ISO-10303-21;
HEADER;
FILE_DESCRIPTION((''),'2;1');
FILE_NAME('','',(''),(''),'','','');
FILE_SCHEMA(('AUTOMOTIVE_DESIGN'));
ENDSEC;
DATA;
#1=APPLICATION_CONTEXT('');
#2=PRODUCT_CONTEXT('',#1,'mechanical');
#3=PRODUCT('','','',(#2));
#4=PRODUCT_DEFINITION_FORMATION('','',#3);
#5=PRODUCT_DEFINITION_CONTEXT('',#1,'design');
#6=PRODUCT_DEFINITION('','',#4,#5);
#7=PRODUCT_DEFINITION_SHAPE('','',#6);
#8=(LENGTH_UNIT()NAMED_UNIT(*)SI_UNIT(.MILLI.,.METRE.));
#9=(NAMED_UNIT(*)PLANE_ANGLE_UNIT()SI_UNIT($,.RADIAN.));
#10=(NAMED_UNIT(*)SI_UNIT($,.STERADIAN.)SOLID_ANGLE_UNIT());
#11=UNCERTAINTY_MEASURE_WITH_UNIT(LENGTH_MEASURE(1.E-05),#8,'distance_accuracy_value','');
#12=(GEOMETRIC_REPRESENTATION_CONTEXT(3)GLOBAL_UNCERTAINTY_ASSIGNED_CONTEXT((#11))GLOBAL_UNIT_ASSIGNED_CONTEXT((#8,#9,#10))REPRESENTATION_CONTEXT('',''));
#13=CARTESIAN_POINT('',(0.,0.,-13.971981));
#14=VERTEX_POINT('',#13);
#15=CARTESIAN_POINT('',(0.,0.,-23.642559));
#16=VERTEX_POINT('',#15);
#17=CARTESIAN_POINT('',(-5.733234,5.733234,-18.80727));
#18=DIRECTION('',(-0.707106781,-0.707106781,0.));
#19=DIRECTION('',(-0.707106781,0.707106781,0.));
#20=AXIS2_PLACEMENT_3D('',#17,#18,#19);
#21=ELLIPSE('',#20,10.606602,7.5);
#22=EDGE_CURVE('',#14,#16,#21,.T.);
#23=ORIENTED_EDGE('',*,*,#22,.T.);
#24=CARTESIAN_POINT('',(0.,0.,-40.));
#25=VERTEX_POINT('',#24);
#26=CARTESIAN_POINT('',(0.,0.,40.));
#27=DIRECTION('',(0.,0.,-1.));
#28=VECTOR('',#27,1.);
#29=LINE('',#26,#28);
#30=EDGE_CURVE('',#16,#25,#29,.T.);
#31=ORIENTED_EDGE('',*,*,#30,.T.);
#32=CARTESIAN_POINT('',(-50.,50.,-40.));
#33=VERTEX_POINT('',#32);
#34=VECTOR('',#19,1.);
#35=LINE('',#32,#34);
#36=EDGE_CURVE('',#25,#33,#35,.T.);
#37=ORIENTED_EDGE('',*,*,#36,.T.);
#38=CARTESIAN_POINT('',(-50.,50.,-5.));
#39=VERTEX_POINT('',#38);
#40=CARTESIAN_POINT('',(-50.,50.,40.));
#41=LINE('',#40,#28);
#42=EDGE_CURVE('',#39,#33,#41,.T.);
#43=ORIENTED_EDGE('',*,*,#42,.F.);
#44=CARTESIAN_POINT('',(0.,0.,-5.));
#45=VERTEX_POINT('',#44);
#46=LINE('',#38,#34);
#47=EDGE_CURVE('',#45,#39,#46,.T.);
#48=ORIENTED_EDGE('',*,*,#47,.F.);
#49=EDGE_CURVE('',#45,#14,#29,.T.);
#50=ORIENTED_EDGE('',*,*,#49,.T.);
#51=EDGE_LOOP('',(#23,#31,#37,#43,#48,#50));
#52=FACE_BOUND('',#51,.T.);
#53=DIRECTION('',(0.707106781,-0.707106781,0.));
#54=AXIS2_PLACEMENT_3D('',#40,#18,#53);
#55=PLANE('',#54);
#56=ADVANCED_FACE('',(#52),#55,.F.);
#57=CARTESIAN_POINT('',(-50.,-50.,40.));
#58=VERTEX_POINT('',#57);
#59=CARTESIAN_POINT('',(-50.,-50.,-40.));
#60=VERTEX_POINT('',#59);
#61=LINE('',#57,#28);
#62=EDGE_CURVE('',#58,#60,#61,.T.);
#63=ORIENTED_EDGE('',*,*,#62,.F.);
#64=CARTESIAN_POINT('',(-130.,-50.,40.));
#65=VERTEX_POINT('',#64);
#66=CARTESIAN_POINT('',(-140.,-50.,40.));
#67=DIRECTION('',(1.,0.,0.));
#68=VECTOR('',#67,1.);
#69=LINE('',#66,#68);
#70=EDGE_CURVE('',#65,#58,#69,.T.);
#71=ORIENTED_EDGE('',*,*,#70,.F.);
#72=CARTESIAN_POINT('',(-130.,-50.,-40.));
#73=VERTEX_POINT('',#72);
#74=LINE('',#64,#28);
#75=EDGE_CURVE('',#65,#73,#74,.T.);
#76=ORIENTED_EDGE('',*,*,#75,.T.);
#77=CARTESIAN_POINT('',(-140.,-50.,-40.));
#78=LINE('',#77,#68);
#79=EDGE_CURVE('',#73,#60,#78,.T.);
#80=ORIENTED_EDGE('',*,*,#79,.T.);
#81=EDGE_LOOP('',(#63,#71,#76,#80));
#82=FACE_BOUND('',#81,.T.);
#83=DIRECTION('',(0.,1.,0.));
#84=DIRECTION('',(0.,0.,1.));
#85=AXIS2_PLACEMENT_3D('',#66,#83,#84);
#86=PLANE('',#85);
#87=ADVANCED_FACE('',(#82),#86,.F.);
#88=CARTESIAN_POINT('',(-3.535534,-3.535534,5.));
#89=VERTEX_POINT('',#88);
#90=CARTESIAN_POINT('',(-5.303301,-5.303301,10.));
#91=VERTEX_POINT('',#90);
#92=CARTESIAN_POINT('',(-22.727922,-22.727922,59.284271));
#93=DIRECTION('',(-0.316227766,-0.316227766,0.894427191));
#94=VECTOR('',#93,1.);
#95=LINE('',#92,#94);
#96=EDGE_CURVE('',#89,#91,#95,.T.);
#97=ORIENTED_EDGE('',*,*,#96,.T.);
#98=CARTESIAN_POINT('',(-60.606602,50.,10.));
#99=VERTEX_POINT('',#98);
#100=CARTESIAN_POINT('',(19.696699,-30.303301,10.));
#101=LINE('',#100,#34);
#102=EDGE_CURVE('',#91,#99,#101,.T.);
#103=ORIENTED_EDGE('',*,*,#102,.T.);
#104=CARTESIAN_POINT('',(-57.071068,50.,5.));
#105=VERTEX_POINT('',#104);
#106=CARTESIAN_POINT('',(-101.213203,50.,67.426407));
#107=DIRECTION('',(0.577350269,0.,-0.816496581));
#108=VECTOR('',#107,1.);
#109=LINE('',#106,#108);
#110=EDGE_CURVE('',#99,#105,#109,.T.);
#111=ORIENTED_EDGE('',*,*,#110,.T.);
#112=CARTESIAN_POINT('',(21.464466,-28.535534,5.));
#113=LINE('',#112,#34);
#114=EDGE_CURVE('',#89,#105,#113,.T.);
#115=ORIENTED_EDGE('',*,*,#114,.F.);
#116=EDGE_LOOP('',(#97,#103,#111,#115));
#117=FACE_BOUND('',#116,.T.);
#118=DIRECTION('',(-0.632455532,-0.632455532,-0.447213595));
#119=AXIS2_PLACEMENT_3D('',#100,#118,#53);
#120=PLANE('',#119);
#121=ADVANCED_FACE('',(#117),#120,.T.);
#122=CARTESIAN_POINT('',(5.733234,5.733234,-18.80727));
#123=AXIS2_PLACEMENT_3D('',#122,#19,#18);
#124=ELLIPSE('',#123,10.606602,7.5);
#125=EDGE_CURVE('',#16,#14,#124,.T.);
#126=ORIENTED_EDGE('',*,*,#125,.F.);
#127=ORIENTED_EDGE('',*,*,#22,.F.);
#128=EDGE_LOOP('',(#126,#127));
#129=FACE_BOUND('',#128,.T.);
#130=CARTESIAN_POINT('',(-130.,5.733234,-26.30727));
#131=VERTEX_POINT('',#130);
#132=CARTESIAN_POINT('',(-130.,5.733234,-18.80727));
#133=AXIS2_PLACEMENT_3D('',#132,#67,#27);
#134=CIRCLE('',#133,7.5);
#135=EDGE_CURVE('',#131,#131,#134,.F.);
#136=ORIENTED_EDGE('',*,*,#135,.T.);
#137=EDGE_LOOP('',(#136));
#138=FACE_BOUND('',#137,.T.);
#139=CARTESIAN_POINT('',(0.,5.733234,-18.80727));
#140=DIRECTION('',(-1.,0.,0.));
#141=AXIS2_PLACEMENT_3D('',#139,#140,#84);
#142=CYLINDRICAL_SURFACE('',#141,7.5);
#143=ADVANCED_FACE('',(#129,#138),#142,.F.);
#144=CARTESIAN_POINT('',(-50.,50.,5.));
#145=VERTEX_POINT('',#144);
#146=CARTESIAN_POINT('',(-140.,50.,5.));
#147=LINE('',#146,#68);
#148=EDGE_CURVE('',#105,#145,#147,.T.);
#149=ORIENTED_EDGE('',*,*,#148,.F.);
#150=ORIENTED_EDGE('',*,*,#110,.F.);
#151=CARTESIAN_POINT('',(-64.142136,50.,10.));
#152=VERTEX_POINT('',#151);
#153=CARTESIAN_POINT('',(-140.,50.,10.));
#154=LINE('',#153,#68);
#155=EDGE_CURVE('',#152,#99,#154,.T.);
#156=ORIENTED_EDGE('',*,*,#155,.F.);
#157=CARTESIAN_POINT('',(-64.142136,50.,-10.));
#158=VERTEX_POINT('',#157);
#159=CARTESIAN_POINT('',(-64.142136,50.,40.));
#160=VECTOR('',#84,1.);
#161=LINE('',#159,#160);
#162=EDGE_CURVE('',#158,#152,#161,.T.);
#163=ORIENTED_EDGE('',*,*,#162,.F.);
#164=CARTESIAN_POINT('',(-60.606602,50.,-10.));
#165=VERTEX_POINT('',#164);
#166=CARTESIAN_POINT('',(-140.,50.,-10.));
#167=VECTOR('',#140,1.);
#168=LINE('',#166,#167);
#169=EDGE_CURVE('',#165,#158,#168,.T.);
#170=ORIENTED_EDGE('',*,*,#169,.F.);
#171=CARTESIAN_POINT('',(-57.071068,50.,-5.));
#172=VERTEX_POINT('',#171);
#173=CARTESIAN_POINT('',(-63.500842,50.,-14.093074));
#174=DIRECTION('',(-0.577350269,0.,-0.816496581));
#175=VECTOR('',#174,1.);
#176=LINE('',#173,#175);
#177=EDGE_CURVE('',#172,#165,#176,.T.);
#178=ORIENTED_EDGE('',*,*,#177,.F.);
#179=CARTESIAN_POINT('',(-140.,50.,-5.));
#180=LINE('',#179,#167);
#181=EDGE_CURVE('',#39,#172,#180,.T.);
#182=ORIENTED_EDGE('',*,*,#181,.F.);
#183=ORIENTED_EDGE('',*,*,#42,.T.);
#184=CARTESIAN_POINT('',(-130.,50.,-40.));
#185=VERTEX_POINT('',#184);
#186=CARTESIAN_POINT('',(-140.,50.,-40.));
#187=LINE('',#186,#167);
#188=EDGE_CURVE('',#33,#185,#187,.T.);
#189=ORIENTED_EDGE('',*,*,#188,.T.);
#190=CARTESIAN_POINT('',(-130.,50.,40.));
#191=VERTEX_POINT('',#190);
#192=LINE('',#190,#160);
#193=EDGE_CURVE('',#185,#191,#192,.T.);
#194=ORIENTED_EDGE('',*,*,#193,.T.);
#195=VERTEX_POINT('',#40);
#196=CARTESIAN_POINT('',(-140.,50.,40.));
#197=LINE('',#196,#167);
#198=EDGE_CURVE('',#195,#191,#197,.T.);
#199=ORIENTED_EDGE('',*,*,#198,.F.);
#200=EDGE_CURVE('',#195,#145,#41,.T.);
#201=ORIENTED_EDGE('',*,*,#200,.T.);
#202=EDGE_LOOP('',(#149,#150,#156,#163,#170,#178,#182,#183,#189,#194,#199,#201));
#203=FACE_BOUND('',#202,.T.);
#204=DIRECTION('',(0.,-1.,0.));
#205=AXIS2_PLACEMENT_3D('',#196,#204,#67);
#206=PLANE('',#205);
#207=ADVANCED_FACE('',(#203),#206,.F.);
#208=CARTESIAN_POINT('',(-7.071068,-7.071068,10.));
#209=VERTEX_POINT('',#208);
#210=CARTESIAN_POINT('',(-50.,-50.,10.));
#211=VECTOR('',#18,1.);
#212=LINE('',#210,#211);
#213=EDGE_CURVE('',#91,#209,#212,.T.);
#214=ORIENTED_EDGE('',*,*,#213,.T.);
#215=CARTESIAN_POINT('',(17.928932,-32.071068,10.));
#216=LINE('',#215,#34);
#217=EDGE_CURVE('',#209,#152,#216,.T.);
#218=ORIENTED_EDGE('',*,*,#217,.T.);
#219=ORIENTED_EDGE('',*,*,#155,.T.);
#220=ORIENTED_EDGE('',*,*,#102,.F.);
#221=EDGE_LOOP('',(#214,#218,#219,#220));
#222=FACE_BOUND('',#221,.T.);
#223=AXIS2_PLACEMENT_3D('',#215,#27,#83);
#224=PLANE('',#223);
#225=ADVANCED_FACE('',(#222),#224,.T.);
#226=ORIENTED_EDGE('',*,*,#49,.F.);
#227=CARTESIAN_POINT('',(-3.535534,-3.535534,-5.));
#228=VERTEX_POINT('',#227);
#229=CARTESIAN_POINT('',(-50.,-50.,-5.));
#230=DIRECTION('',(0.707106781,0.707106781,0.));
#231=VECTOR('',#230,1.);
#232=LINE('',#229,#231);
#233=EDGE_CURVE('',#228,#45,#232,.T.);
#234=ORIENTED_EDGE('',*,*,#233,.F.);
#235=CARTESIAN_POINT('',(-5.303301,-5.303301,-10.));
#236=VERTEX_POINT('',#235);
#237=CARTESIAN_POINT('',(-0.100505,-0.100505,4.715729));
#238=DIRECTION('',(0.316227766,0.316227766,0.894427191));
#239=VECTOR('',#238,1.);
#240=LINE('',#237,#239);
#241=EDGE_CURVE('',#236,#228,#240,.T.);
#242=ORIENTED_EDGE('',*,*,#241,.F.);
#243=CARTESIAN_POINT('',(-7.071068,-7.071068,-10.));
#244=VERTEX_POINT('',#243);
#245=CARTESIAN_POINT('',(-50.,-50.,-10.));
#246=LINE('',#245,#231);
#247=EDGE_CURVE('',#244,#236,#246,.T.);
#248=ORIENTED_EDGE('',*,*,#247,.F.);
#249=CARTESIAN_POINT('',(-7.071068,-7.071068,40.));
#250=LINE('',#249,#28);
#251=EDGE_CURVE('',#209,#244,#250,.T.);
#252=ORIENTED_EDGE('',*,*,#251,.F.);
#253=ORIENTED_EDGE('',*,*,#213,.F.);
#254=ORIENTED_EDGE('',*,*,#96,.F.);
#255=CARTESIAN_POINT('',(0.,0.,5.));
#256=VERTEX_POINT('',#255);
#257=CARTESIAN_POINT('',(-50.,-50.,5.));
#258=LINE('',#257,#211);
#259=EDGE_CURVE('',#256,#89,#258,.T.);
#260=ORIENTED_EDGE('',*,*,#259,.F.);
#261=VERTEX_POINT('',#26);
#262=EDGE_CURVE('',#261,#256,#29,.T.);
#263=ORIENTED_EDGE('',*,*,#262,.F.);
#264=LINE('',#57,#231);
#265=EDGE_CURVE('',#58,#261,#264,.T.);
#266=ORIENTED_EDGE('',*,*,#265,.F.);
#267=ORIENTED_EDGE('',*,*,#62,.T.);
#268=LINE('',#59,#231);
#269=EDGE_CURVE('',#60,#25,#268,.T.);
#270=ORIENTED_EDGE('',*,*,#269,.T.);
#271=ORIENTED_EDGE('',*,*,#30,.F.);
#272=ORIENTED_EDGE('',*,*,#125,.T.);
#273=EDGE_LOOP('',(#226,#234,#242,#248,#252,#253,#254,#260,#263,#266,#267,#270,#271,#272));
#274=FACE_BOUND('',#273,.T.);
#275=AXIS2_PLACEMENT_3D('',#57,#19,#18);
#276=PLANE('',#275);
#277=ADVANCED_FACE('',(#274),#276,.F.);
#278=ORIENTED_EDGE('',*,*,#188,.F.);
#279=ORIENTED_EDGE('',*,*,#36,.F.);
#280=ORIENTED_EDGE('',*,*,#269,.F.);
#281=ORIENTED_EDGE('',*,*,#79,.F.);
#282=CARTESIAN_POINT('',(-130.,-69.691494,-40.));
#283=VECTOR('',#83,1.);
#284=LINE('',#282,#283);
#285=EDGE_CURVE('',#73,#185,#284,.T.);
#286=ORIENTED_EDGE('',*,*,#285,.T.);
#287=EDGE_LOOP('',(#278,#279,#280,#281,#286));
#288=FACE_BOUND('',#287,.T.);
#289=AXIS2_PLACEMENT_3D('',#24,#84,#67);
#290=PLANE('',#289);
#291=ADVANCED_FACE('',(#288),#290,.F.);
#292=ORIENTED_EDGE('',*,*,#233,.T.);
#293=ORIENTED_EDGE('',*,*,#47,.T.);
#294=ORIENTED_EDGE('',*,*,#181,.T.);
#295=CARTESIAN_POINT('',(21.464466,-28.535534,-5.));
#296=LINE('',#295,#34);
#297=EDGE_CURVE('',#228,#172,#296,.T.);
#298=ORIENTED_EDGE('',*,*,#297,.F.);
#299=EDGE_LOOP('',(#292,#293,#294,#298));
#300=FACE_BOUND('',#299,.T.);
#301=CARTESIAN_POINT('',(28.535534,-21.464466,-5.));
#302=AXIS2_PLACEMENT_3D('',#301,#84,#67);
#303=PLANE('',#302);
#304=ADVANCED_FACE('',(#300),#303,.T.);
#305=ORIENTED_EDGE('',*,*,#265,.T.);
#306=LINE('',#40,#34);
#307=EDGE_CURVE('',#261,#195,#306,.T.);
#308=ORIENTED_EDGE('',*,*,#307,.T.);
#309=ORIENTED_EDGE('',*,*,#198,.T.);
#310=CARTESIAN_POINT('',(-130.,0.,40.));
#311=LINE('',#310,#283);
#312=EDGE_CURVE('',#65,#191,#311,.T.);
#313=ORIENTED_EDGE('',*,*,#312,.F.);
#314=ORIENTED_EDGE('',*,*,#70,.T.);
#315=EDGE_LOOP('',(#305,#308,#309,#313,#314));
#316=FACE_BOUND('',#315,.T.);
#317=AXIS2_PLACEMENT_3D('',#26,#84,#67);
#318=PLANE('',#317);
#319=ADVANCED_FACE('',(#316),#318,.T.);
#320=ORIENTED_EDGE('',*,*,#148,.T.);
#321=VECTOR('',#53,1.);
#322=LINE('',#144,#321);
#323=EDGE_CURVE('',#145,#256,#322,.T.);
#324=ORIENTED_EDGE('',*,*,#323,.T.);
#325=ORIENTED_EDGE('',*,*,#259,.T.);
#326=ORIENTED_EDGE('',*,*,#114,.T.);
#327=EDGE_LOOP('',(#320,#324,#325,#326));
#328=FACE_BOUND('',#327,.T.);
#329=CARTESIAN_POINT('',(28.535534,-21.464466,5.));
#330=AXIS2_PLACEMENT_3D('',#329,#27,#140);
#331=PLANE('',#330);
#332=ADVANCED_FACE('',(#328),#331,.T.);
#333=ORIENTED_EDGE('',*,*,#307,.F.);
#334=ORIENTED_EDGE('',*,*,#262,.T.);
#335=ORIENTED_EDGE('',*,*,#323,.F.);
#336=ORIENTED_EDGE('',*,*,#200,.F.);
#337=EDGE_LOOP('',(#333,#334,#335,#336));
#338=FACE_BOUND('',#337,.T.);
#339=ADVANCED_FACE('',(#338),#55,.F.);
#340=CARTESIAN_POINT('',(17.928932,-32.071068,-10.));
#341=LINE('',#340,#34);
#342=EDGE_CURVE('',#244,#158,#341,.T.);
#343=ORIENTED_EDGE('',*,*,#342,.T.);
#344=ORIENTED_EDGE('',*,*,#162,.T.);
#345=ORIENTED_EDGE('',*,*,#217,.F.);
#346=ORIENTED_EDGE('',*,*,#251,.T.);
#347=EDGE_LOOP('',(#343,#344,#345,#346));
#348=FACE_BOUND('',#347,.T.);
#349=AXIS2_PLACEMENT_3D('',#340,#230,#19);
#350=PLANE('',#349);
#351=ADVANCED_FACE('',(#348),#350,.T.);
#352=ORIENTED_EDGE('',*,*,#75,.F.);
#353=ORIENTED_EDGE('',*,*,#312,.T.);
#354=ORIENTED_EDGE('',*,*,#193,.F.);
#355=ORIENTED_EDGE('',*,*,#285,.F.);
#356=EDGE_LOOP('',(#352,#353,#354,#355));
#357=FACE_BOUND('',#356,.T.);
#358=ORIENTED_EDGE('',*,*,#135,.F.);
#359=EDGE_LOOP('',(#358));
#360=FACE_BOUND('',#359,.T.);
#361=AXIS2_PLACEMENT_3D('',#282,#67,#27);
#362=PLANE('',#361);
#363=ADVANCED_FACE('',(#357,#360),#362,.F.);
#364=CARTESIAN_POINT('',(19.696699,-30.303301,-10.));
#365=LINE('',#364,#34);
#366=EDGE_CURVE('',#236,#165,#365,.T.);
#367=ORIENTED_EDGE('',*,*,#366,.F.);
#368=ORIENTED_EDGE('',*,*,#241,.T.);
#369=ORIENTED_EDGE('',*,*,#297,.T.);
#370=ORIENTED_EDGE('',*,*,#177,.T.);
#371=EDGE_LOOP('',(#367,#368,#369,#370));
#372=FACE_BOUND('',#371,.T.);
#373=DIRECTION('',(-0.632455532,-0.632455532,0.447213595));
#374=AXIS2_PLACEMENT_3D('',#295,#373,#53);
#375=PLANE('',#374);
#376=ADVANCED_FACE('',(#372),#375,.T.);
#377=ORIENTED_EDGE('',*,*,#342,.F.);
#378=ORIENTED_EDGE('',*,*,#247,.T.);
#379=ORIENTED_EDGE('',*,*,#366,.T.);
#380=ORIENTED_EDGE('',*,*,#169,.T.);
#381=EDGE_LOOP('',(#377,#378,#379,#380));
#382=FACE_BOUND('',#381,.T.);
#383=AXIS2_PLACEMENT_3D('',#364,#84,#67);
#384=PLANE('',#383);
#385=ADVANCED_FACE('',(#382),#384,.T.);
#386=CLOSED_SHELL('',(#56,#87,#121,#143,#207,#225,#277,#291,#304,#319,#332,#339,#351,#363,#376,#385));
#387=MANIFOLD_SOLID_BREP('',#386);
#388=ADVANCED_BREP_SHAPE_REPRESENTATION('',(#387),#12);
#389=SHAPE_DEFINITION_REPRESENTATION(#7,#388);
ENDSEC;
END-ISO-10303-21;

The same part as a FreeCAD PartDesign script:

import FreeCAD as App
import Part
import Sketcher
Q = App.Units.Quantity

doc = App.newDocument("Part")
body = doc.addObject("PartDesign::Body", "Body")

# Sketch on XY plane
sketch1 = body.newObject("Sketcher::SketchObject", "Sketch")
sketch1.AttachmentSupport = (doc.getObject("XY_Plane"), [""])
sketch1.MapMode = "FlatFace"
sketch1.addGeometry(Part.LineSegment(App.Vector(-140, 50, 0), App.Vector(-140, -50, 0)), False)
sketch1.addGeometry(Part.LineSegment(App.Vector(-140, -50, 0), App.Vector(-50, -50, 0)), False)
sketch1.addGeometry(Part.LineSegment(App.Vector(-50, -50, 0), App.Vector(0, 0, 0)), False)
sketch1.addGeometry(Part.LineSegment(App.Vector(0, 0, 0), App.Vector(-50, 50, 0)), False)
sketch1.addGeometry(Part.LineSegment(App.Vector(-50, 50, 0), App.Vector(-140, 50, 0)), False)
sketch1.addConstraint(Sketcher.Constraint("Coincident", 0, 2, 1, 1))
sketch1.addConstraint(Sketcher.Constraint("Coincident", 1, 2, 2, 1))
sketch1.addConstraint(Sketcher.Constraint("Coincident", 2, 2, 3, 1))
sketch1.addConstraint(Sketcher.Constraint("Coincident", 3, 2, 4, 1))
sketch1.addConstraint(Sketcher.Constraint("Coincident", 4, 2, 0, 1))
sketch1.addConstraint(Sketcher.Constraint("Vertical", 0))
sketch1.addConstraint(Sketcher.Constraint("Horizontal", 1))
sketch1.addConstraint(Sketcher.Constraint("Horizontal", 4))
sketch1.addConstraint(Sketcher.Constraint("Coincident", 2, 2, -1, 1))
sketch1.addConstraint(Sketcher.Constraint("Symmetric", 1, 2, 3, 2, -1))
sketch1.addConstraint(Sketcher.Constraint("Perpendicular", 2, 3))
sketch1.addConstraint(Sketcher.Constraint("DistanceX", 1, 1, 1, 2, Q("90 mm")))
sketch1.addConstraint(Sketcher.Constraint("DistanceY", 0, 2, 0, 1, Q("100 mm")))
pad1 = body.newObject("PartDesign::Pad", "Pad")
pad1.Profile = sketch1
pad1.Length = 80
pad1.Midplane = True

# Sketch on YZ plane
sketch2 = body.newObject("Sketcher::SketchObject", "Sketch001")
sketch2.AttachmentSupport = (doc.getObject("YZ_Plane"), [""])
sketch2.MapMode = "FlatFace"
sketch2.AttachmentOffset = App.Placement(App.Vector(0, 0, -140), App.Rotation())
sketch2.addGeometry(Part.Circle(App.Vector(5.733234, -18.80727, 0), App.Vector(0, 0, 1), 7.5), False)
sketch2.addConstraint(Sketcher.Constraint("Diameter", 0, Q("15 mm")))
sketch2.addConstraint(Sketcher.Constraint("DistanceY", 0, 3, -1, 1, Q("18.80727 mm")))
sketch2.addConstraint(Sketcher.Constraint("DistanceX", -1, 1, 0, 3, Q("5.733234 mm")))
pocket1 = body.newObject("PartDesign::Pocket", "Pocket")
pocket1.Profile = sketch2
pocket1.Type = "ThroughAll"
pocket1.Reversed = True

# Sketch on an angled plane
sketch3 = body.newObject("Sketcher::SketchObject", "Sketch002")
sketch3.Placement = App.Placement(App.Vector(-50, 50, 0), App.Rotation(App.Vector(0, 0, -1), App.Vector(0.707106781, 0.707106781, 0), App.Vector(0.707106781, -0.707106781, 0), "ZXY"))
sketch3.addGeometry(Part.LineSegment(App.Vector(5, 5, 0), App.Vector(-5, 5, 0)), False)
sketch3.addGeometry(Part.LineSegment(App.Vector(-5, 5, 0), App.Vector(-5, -5, 0)), False)
sketch3.addGeometry(Part.LineSegment(App.Vector(-5, -5, 0), App.Vector(-10, -7.5, 0)), False)
sketch3.addGeometry(Part.LineSegment(App.Vector(-10, -7.5, 0), App.Vector(-10, -10, 0)), False)
sketch3.addGeometry(Part.LineSegment(App.Vector(-10, -10, 0), App.Vector(10, -10, 0)), False)
sketch3.addGeometry(Part.LineSegment(App.Vector(10, -10, 0), App.Vector(10, -7.5, 0)), False)
sketch3.addGeometry(Part.LineSegment(App.Vector(10, -7.5, 0), App.Vector(5, -5, 0)), False)
sketch3.addGeometry(Part.LineSegment(App.Vector(5, -5, 0), App.Vector(5, 5, 0)), False)
sketch3.addConstraint(Sketcher.Constraint("Coincident", 0, 2, 1, 1))
sketch3.addConstraint(Sketcher.Constraint("Coincident", 1, 2, 2, 1))
sketch3.addConstraint(Sketcher.Constraint("Coincident", 2, 2, 3, 1))
sketch3.addConstraint(Sketcher.Constraint("Coincident", 3, 2, 4, 1))
sketch3.addConstraint(Sketcher.Constraint("Coincident", 4, 2, 5, 1))
sketch3.addConstraint(Sketcher.Constraint("Coincident", 5, 2, 6, 1))
sketch3.addConstraint(Sketcher.Constraint("Coincident", 6, 2, 7, 1))
sketch3.addConstraint(Sketcher.Constraint("Coincident", 7, 2, 0, 1))
sketch3.addConstraint(Sketcher.Constraint("Horizontal", 0))
sketch3.addConstraint(Sketcher.Constraint("Vertical", 1))
sketch3.addConstraint(Sketcher.Constraint("Vertical", 3))
sketch3.addConstraint(Sketcher.Constraint("Horizontal", 4))
sketch3.addConstraint(Sketcher.Constraint("Vertical", 5))
sketch3.addConstraint(Sketcher.Constraint("Vertical", 7))
sketch3.addConstraint(Sketcher.Constraint("Symmetric", 0, 2, 6, 2, -1, 1))
sketch3.addConstraint(Sketcher.Constraint("Symmetric", 2, 2, 5, 2, -2))
sketch3.addConstraint(Sketcher.Constraint("Horizontal", 1, 2, 6, 2))
sketch3.addConstraint(Sketcher.Constraint("Equal", 0, 1))
sketch3.addConstraint(Sketcher.Constraint("DistanceX", 0, 2, 0, 1, Q("10 mm")))
sketch3.addConstraint(Sketcher.Constraint("DistanceX", 4, 1, 4, 2, Q("20 mm")))
sketch3.addConstraint(Sketcher.Constraint("DistanceY", 3, 2, 3, 1, Q("2.5 mm")))
sketch3.addConstraint(Sketcher.Constraint("DistanceY", 3, 2, -1, 1, Q("10 mm")))
pocket2 = body.newObject("PartDesign::Pocket", "Pocket001")
pocket2.Profile = sketch3
pocket2.Type = "ThroughAll"
pocket2.Midplane = True

# Sketch on XY plane
sketch4 = body.newObject("Sketcher::SketchObject", "Sketch003")
sketch4.AttachmentSupport = (doc.getObject("XY_Plane"), [""])
sketch4.MapMode = "FlatFace"
sketch4.AttachmentOffset = App.Placement(App.Vector(0, 0, 40), App.Rotation())
sketch4.addGeometry(Part.LineSegment(App.Vector(-169.056064, 58.415628, 0), App.Vector(-169.056064, -69.691494, 0)), False)
sketch4.addGeometry(Part.LineSegment(App.Vector(-169.056064, -69.691494, 0), App.Vector(-130, -69.691494, 0)), False)
sketch4.addGeometry(Part.LineSegment(App.Vector(-130, -69.691494, 0), App.Vector(-130, 58.415628, 0)), False)
sketch4.addGeometry(Part.LineSegment(App.Vector(-130, 58.415628, 0), App.Vector(-169.056064, 58.415628, 0)), False)
sketch4.addConstraint(Sketcher.Constraint("Coincident", 0, 2, 1, 1))
sketch4.addConstraint(Sketcher.Constraint("Coincident", 1, 2, 2, 1))
sketch4.addConstraint(Sketcher.Constraint("Coincident", 2, 2, 3, 1))
sketch4.addConstraint(Sketcher.Constraint("Coincident", 3, 2, 0, 1))
sketch4.addConstraint(Sketcher.Constraint("Vertical", 0))
sketch4.addConstraint(Sketcher.Constraint("Horizontal", 1))
sketch4.addConstraint(Sketcher.Constraint("Vertical", 2))
sketch4.addConstraint(Sketcher.Constraint("Horizontal", 3))
sketch4.addConstraint(Sketcher.Constraint("DistanceX", 1, 2, -1, 1, Q("130 mm")))
sketch4.addConstraint(Sketcher.Constraint("DistanceY", 0, 2, 0, 1, Q("128.107121 mm")))
sketch4.addConstraint(Sketcher.Constraint("DistanceX", 1, 1, 1, 2, Q("39.056064 mm")))
sketch4.addConstraint(Sketcher.Constraint("DistanceY", 0, 2, -1, 1, Q("69.691494 mm")))
pocket3 = body.newObject("PartDesign::Pocket", "Pocket002")
pocket3.Profile = sketch4
pocket3.Type = "ThroughAll"
pocket3.Midplane = True

doc.recompute()
